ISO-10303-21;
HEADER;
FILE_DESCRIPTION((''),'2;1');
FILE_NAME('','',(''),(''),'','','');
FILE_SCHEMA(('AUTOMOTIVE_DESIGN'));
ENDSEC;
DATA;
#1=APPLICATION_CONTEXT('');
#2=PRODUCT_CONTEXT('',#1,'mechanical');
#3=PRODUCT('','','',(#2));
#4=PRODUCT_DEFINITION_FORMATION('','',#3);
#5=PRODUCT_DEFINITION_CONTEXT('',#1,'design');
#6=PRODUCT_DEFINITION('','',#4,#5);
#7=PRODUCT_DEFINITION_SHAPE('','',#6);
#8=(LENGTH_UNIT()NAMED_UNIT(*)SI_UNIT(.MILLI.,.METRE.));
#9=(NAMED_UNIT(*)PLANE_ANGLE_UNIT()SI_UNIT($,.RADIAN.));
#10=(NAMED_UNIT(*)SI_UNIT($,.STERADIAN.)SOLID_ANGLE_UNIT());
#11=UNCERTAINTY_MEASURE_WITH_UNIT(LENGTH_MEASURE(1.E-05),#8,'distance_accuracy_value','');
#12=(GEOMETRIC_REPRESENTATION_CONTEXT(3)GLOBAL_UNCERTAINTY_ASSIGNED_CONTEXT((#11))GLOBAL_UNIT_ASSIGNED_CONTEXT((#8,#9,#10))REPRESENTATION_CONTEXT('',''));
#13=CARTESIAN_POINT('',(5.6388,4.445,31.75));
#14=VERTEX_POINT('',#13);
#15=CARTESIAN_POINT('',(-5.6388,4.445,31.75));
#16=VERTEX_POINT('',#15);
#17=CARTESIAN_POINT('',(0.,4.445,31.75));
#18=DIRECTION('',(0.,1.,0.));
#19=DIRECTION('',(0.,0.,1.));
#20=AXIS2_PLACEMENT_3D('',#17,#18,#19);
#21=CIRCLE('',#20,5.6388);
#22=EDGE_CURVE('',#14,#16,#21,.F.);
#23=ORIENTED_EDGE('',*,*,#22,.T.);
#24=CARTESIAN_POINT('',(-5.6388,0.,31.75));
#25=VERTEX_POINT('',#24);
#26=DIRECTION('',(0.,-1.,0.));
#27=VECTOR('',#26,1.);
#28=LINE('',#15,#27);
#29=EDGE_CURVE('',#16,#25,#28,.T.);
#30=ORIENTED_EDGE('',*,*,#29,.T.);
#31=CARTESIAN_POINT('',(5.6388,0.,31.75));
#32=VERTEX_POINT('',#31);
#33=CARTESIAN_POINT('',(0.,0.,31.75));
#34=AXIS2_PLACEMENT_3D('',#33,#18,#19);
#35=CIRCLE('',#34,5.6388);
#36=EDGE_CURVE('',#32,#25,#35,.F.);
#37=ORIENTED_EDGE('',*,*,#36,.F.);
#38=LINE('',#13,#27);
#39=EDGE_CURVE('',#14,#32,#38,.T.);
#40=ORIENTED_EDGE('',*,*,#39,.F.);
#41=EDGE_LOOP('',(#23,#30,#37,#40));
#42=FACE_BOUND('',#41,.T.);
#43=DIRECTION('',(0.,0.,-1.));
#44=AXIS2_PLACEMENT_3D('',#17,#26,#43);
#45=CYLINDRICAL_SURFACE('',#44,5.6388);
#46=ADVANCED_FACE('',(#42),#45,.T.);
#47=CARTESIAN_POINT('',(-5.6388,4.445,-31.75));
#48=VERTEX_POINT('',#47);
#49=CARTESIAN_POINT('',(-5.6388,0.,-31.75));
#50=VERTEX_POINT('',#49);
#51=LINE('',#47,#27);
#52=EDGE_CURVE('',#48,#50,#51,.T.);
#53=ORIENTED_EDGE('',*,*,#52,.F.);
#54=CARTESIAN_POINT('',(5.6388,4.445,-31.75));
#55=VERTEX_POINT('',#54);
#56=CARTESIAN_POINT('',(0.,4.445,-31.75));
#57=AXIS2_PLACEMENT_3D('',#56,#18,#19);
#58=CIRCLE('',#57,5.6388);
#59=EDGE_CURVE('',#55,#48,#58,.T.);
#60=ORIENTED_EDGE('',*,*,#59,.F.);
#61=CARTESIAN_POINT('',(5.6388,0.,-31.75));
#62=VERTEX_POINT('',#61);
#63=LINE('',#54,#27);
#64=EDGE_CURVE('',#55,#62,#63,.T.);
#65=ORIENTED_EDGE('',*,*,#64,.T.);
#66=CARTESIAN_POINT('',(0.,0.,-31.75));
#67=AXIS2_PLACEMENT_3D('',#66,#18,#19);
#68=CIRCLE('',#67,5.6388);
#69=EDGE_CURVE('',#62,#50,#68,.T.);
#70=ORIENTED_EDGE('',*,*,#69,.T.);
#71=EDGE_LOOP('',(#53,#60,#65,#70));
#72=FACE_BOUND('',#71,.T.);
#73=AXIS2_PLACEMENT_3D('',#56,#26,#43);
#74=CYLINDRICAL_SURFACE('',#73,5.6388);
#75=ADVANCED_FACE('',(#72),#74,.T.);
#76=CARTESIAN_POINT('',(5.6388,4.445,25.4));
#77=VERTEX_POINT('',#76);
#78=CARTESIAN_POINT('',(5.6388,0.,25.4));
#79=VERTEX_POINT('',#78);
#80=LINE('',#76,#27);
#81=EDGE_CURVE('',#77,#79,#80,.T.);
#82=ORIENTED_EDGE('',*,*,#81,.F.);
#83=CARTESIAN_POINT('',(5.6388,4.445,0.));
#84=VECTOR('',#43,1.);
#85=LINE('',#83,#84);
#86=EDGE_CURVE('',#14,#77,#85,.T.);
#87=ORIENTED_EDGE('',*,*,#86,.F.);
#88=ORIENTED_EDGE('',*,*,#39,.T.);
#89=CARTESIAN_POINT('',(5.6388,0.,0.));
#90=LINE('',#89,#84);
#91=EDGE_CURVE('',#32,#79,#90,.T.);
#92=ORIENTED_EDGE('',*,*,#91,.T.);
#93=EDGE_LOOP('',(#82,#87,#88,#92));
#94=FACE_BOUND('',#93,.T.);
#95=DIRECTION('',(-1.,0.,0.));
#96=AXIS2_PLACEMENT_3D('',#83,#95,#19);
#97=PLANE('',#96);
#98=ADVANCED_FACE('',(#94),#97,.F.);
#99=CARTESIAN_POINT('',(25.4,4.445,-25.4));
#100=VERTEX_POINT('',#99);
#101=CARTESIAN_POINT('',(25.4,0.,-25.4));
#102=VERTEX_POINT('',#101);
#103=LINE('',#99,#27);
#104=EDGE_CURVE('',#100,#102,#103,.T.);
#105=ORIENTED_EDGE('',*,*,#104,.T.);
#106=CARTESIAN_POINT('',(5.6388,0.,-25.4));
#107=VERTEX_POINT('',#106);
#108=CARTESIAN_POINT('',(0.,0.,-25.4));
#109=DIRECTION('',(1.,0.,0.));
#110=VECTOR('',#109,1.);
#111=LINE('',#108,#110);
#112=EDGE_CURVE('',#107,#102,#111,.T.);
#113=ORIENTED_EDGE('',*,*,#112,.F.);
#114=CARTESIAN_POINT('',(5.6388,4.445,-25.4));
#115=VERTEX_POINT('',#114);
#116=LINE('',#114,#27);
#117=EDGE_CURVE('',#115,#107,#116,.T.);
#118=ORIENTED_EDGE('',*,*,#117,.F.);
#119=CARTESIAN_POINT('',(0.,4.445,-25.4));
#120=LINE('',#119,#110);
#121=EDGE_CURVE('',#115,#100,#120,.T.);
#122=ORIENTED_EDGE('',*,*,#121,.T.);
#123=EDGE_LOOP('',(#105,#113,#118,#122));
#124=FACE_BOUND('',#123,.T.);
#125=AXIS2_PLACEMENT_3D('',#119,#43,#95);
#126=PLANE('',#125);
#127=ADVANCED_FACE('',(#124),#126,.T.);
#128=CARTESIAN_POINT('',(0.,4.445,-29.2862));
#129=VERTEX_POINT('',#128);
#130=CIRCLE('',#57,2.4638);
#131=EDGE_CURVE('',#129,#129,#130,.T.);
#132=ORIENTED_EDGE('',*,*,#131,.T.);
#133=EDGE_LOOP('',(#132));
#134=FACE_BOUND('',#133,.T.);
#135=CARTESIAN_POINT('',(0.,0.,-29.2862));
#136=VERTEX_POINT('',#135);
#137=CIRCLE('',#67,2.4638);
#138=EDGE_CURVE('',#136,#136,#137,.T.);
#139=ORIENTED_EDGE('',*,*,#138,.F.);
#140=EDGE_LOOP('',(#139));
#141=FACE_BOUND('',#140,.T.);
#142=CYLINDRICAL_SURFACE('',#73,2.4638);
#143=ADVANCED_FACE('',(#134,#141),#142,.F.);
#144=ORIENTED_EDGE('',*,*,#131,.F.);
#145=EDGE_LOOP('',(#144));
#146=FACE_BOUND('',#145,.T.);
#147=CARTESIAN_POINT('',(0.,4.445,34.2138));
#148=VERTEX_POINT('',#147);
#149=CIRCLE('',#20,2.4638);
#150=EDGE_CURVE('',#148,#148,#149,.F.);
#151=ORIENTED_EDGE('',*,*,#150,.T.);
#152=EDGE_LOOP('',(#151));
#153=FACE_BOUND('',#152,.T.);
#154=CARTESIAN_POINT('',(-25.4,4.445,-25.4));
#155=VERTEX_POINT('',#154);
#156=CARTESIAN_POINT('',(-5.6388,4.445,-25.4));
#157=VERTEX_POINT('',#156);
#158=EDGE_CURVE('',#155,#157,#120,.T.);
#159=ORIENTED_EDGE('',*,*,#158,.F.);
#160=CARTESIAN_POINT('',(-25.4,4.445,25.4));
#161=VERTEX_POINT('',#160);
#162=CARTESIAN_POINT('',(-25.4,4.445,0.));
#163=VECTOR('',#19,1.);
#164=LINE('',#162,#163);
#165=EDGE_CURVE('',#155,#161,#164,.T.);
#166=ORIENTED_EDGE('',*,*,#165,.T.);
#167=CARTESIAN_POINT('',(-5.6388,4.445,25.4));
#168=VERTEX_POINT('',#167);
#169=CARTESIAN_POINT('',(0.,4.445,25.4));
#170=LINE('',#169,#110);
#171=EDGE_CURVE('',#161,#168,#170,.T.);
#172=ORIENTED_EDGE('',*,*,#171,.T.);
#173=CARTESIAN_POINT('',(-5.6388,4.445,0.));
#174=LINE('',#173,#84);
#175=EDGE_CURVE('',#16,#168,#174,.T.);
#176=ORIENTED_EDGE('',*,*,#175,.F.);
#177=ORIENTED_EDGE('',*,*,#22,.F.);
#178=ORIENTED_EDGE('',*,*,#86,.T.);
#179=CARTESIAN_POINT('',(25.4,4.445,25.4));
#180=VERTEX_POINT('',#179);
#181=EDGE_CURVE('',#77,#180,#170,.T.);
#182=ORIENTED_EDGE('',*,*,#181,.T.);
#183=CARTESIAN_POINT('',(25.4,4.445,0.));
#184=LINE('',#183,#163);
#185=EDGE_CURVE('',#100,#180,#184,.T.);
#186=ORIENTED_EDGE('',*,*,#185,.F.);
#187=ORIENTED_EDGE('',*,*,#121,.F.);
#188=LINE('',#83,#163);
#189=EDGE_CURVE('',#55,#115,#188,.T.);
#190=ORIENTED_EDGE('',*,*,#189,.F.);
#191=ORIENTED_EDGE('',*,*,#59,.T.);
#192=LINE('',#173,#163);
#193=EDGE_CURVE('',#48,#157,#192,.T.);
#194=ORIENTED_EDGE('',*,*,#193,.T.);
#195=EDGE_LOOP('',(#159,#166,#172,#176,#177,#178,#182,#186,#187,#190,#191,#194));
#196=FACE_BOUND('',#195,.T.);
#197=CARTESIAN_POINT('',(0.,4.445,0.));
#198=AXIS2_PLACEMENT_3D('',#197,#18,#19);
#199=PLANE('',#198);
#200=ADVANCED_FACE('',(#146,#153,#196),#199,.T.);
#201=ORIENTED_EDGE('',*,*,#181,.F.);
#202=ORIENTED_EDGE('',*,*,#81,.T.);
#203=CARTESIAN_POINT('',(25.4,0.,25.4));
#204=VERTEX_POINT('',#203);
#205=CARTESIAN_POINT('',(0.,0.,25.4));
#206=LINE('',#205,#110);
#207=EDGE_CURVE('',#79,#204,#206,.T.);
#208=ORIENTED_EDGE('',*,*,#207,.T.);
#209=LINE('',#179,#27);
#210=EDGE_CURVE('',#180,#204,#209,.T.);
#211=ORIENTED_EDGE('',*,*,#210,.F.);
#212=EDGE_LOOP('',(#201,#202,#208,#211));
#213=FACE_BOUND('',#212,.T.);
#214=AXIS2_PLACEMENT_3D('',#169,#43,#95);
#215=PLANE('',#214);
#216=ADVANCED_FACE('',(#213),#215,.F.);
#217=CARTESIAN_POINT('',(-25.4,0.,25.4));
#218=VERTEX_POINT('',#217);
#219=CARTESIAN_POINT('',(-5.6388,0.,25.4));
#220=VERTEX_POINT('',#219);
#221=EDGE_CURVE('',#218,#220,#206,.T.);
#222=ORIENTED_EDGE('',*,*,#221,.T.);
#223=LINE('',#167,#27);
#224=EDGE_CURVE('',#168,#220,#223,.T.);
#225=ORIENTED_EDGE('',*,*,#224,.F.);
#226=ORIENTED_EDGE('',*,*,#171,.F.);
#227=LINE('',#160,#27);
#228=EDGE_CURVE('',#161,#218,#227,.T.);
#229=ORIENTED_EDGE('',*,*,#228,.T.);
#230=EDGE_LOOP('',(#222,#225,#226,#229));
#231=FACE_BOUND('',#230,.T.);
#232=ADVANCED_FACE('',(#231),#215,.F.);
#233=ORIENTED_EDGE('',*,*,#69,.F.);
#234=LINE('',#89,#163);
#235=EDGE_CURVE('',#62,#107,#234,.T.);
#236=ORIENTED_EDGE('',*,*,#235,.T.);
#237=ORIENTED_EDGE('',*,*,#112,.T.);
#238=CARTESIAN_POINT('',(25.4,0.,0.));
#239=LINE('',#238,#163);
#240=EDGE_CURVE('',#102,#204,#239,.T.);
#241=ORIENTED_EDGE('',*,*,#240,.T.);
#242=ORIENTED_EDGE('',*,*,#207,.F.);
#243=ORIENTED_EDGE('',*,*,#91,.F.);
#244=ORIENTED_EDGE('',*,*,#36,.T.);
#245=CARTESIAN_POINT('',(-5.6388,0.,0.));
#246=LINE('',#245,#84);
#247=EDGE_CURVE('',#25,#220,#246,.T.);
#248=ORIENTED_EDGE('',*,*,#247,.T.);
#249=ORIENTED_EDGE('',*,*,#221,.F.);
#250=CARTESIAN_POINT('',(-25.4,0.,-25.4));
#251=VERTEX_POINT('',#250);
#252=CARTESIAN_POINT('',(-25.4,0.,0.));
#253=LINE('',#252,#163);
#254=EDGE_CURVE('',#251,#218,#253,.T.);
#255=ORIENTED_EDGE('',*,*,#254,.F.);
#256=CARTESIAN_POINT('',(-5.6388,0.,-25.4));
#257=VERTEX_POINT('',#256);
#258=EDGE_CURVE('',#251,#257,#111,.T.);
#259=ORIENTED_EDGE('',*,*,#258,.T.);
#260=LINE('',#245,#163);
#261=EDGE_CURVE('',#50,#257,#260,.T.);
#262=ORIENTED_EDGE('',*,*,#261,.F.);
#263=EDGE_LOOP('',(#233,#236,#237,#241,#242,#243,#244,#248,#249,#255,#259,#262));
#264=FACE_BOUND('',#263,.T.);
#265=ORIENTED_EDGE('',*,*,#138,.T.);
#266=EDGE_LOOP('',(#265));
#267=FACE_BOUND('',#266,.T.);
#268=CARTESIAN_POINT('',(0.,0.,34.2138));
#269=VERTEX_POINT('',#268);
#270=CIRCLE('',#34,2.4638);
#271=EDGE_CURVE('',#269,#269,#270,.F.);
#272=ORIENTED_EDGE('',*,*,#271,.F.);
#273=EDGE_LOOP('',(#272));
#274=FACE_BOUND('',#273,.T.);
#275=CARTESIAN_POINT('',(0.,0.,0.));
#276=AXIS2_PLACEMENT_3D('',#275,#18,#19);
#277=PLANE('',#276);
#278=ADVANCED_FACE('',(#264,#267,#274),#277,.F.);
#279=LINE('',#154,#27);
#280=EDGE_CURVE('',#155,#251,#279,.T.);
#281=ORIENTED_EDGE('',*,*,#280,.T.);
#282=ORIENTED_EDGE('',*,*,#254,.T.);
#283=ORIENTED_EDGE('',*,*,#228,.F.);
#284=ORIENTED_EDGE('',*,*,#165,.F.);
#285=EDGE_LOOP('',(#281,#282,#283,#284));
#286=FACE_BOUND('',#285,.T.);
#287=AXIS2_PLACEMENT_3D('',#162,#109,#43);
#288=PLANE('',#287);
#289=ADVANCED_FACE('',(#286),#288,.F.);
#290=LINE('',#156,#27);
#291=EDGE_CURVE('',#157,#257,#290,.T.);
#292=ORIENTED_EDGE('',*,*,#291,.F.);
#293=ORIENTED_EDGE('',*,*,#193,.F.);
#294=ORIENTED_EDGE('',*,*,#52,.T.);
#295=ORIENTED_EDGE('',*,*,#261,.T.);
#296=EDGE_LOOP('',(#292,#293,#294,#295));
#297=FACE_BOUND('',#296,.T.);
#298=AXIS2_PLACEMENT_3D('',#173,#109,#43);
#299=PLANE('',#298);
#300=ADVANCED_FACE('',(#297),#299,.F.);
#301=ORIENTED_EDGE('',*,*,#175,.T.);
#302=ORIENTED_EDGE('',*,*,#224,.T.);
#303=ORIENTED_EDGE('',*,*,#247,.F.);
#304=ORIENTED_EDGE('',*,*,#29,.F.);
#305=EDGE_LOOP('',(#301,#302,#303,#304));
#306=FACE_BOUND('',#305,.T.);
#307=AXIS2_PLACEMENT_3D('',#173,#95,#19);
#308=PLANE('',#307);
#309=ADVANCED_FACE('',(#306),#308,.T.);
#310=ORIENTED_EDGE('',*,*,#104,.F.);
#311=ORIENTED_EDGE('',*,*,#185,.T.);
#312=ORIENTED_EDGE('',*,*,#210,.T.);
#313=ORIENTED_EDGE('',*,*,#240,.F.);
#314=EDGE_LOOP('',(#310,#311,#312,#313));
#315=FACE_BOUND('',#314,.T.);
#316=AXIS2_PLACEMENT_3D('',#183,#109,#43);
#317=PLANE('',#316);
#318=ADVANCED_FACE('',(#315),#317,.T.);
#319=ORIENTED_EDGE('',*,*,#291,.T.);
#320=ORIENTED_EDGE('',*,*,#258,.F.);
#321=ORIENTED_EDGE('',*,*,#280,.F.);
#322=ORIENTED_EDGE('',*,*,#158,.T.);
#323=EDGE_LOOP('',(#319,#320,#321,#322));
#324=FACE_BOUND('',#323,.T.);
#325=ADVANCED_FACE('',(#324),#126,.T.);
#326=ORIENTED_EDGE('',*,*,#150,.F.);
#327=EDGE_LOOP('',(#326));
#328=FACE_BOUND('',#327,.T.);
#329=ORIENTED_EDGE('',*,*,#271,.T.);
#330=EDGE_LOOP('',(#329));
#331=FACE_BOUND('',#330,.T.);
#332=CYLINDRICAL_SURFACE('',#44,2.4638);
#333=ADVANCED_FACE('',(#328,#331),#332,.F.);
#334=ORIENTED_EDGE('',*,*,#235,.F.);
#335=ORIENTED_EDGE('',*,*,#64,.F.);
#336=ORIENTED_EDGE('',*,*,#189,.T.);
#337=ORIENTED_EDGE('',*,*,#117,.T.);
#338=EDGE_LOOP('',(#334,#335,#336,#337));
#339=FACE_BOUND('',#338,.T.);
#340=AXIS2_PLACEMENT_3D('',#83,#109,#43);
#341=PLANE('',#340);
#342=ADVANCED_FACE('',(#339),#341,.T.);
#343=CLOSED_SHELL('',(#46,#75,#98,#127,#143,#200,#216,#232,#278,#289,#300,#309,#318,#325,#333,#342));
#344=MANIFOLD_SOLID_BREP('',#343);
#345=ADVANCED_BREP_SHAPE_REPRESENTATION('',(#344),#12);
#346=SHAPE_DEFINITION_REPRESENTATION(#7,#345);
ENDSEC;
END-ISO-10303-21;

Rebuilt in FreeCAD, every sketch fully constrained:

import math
import FreeCAD as App
import Part
import Sketcher
from FreeCAD import Vector
Q = App.Units.Quantity

doc = App.newDocument("Part")
body = doc.addObject("PartDesign::Body", "Body")

# Sketch on XZ plane
sketch1 = body.newObject("Sketcher::SketchObject", "Sketch")
sketch1.AttachmentSupport = (doc.getObject("XZ_Plane"), [""])
sketch1.MapMode = "FlatFace"
sketch1.addGeometry(Part.ArcOfCircle(Part.Circle(Vector(0, 31.8, 0), Vector(0, 0, 1), 5.6), math.radians(0), math.radians(180)), False)
sketch1.addGeometry(Part.LineSegment(Vector(5.6, 31.8, 0), Vector(5.6, 25.4, 0)), False)
sketch1.addGeometry(Part.LineSegment(Vector(5.6, 25.4, 0), Vector(25.4, 25.4, 0)), False)
sketch1.addGeometry(Part.LineSegment(Vector(25.4, 25.4, 0), Vector(25.4, -25.4, 0)), False)
sketch1.addGeometry(Part.LineSegment(Vector(25.4, -25.4, 0), Vector(5.6, -25.4, 0)), False)
sketch1.addGeometry(Part.LineSegment(Vector(5.6, -25.4, 0), Vector(5.6, -31.8, 0)), False)
sketch1.addGeometry(Part.ArcOfCircle(Part.Circle(Vector(0, -31.8, 0), Vector(0, 0, 1), 5.6), math.radians(180), math.radians(360)), False)
sketch1.addGeometry(Part.LineSegment(Vector(-5.6, -31.8, 0), Vector(-5.6, -25.4, 0)), False)
sketch1.addGeometry(Part.LineSegment(Vector(-5.6, -25.4, 0), Vector(-25.4, -25.4, 0)), False)
sketch1.addGeometry(Part.LineSegment(Vector(-25.4, -25.4, 0), Vector(-25.4, 25.4, 0)), False)
sketch1.addGeometry(Part.LineSegment(Vector(-25.4, 25.4, 0), Vector(-5.6, 25.4, 0)), False)
sketch1.addGeometry(Part.LineSegment(Vector(-5.6, 25.4, 0), Vector(-5.6, 31.8, 0)), False)
sketch1.addGeometry(Part.Circle(Vector(0, 31.8, 0), Vector(0, 0, 1), 2.5), False)
sketch1.addGeometry(Part.Circle(Vector(0, -31.8, 0), Vector(0, 0, 1), 2.5), False)
sketch1.addConstraint(Sketcher.Constraint("Tangent", 0, 1, 1, 1))
sketch1.addConstraint(Sketcher.Constraint("Coincident", 1, 2, 2, 1))
sketch1.addConstraint(Sketcher.Constraint("Coincident", 2, 2, 3, 1))
sketch1.addConstraint(Sketcher.Constraint("Coincident", 3, 2, 4, 1))
sketch1.addConstraint(Sketcher.Constraint("Coincident", 4, 2, 5, 1))
sketch1.addConstraint(Sketcher.Constraint("Tangent", 5, 2, 6, 2))
sketch1.addConstraint(Sketcher.Constraint("Tangent", 6, 1, 7, 1))
sketch1.addConstraint(Sketcher.Constraint("Coincident", 7, 2, 8, 1))
sketch1.addConstraint(Sketcher.Constraint("Coincident", 8, 2, 9, 1))
sketch1.addConstraint(Sketcher.Constraint("Coincident", 9, 2, 10, 1))
sketch1.addConstraint(Sketcher.Constraint("Coincident", 10, 2, 11, 1))
sketch1.addConstraint(Sketcher.Constraint("Tangent", 11, 2, 0, 2))
sketch1.addConstraint(Sketcher.Constraint("Vertical", 1))
sketch1.addConstraint(Sketcher.Constraint("Horizontal", 2))
sketch1.addConstraint(Sketcher.Constraint("Vertical", 3))
sketch1.addConstraint(Sketcher.Constraint("Horizontal", 4))
sketch1.addConstraint(Sketcher.Constraint("Vertical", 5))
sketch1.addConstraint(Sketcher.Constraint("Vertical", 7))
sketch1.addConstraint(Sketcher.Constraint("Horizontal", 8))
sketch1.addConstraint(Sketcher.Constraint("Vertical", 9))
sketch1.addConstraint(Sketcher.Constraint("Horizontal", 10))
sketch1.addConstraint(Sketcher.Constraint("Vertical", 11))
sketch1.addConstraint(Sketcher.Constraint("Coincident", 12, 3, 0, 3))
sketch1.addConstraint(Sketcher.Constraint("Coincident", 13, 3, 6, 3))
sketch1.addConstraint(Sketcher.Constraint("Equal", 0, 6))
sketch1.addConstraint(Sketcher.Constraint("Equal", 12, 13))
sketch1.addConstraint(Sketcher.Constraint("Symmetric", 0, 3, 6, 3, -1, 1))
sketch1.addConstraint(Sketcher.Constraint("Symmetric", 2, 2, 8, 2, -1, 1))
sketch1.addConstraint(Sketcher.Constraint("Symmetric", 4, 2, 7, 2, -2))
sketch1.addConstraint(Sketcher.Constraint("Horizontal", 2, 2, 9, 2))
sketch1.addConstraint(Sketcher.Constraint("DistanceY", 3, 2, 3, 1, Q("2 in")))
sketch1.addConstraint(Sketcher.Constraint("Diameter", 12, Q("0.194 in")))
sketch1.addConstraint(Sketcher.Constraint("DistanceX", -1, 1, 2, 2, Q("1 in")))
sketch1.addConstraint(Sketcher.Constraint("Radius", 0, Q("0.222 in")))
sketch1.addConstraint(Sketcher.Constraint("DistanceY", 1, 2, 1, 1, Q("0.25 in")))
pad1 = body.newObject("PartDesign::Pad", "Pad")
pad1.Profile = sketch1
pad1.Length = Q("0.175 in")
pad1.Reversed = True

doc.recompute()
